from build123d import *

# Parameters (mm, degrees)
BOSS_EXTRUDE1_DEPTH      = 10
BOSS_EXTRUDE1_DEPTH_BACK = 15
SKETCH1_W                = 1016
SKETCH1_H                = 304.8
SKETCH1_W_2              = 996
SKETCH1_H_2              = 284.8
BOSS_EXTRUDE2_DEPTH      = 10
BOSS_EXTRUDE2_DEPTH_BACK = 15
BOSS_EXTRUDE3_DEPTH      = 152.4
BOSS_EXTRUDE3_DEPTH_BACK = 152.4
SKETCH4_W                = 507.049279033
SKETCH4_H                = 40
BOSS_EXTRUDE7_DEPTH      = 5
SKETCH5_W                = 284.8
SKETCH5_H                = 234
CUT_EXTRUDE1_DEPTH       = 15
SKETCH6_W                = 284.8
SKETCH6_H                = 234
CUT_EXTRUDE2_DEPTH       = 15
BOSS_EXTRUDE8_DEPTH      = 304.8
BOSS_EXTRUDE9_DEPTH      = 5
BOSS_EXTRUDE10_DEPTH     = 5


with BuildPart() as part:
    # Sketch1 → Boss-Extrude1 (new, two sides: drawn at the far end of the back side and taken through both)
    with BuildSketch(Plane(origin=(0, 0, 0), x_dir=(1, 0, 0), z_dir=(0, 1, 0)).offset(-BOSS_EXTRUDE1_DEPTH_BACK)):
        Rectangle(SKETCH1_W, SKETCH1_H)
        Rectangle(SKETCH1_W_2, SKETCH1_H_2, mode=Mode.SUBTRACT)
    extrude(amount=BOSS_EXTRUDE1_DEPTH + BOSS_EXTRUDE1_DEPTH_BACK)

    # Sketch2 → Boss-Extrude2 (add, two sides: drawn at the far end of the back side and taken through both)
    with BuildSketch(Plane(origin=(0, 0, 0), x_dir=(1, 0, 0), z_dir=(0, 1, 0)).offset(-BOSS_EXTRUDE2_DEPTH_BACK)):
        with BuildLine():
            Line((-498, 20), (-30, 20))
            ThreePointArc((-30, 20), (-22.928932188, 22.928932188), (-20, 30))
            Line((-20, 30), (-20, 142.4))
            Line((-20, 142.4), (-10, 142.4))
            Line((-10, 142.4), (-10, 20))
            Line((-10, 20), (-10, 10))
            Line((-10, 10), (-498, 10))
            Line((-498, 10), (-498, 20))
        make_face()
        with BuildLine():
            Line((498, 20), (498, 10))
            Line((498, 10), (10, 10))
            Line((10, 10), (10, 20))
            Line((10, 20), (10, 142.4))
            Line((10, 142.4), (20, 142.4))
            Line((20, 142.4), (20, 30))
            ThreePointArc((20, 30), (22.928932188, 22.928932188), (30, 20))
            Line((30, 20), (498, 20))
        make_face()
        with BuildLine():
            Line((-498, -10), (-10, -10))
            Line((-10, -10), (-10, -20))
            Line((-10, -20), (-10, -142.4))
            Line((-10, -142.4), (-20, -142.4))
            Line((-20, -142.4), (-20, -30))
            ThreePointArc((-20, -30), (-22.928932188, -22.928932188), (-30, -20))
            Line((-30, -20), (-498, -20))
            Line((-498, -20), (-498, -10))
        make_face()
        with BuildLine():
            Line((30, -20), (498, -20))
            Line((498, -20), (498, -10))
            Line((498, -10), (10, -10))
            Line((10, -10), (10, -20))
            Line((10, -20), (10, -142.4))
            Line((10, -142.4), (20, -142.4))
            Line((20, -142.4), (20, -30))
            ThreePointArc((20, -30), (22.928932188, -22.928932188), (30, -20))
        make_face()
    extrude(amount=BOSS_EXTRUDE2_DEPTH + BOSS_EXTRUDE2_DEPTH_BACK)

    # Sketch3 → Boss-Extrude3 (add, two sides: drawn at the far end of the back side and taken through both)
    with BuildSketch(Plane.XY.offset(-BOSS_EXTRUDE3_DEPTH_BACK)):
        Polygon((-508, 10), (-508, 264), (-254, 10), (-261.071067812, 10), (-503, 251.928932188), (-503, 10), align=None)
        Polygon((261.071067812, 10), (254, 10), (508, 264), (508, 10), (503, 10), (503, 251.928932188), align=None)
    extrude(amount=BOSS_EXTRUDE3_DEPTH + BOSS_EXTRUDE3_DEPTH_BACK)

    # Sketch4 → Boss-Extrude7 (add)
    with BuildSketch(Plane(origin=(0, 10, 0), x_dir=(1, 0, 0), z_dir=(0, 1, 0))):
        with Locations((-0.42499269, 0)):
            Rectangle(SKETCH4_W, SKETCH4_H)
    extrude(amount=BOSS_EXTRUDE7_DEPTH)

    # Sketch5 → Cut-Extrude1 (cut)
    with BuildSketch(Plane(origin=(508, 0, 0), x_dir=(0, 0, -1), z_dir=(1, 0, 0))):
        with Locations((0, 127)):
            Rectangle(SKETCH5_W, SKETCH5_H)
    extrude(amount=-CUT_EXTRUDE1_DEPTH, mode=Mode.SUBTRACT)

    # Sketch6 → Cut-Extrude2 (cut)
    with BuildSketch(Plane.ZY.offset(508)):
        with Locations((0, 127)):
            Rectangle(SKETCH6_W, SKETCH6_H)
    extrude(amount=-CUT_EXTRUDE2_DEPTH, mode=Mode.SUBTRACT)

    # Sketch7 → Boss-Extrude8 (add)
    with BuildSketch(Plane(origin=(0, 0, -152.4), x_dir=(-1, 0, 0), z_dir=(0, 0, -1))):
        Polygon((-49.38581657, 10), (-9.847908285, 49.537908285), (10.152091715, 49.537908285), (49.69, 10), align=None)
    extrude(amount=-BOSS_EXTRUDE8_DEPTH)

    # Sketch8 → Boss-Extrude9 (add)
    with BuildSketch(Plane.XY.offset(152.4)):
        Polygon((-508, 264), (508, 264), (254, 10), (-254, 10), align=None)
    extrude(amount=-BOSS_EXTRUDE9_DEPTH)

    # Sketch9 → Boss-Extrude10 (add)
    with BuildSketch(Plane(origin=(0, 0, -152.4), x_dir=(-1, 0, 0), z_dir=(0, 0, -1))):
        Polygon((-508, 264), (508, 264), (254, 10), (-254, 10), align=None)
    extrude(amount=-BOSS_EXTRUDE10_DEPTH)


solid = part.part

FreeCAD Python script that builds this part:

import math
import FreeCAD as App
import Part
import Sketcher

V = App.Vector
Q = App.Units.Quantity


def add_polygon(sketch, points):
    """Adds a closed chain of lines whose ends are joined by coincident constraints."""
    first, n = sketch.GeometryCount, len(points)
    for a, b in zip(points, points[1:] + points[:1]):
        sketch.addGeometry(Part.LineSegment(App.Vector(*a, 0), App.Vector(*b, 0)), False)
    for i in range(n):
        sketch.addConstraint(Sketcher.Constraint("Coincident", first + i, 2, first + (i + 1) % n, 1))

doc = App.newDocument("Part")
body = doc.addObject("PartDesign::Body", "Body")

# Sketch on XZ plane
sketch1 = body.newObject("Sketcher::SketchObject", "Sketch")
sketch1.AttachmentSupport = (doc.getObject("XZ_Plane"), [""])
sketch1.MapMode = "FlatFace"
add_polygon(sketch1, [(-508, -152.4), (-508, 152.4), (508, 152.4), (508, -152.4)])  # lines 0-3
add_polygon(sketch1, [(498, 142.4), (-498, 142.4), (-498, -142.4), (498, -142.4)])  # lines 4-7
sketch1.addConstraint(Sketcher.Constraint("Vertical", 0))
sketch1.addConstraint(Sketcher.Constraint("Horizontal", 1))
sketch1.addConstraint(Sketcher.Constraint("Vertical", 2))
sketch1.addConstraint(Sketcher.Constraint("Horizontal", 3))
sketch1.addConstraint(Sketcher.Constraint("Horizontal", 4))
sketch1.addConstraint(Sketcher.Constraint("Vertical", 5))
sketch1.addConstraint(Sketcher.Constraint("Horizontal", 6))
sketch1.addConstraint(Sketcher.Constraint("Vertical", 7))
sketch1.addConstraint(Sketcher.Constraint("Symmetric", 0, 2, 2, 2, -1, 1))
sketch1.addConstraint(Sketcher.Constraint("Symmetric", 4, 2, 6, 2, -1, 1))
sketch1.addConstraint(Sketcher.Constraint("DistanceX", 1, 1, 1, 2, Q("1016 mm")))
sketch1.addConstraint(Sketcher.Constraint("DistanceX", 4, 2, 4, 1, Q("996 mm")))
sketch1.addConstraint(Sketcher.Constraint("DistanceY", 0, 1, 0, 2, Q("304.8 mm")))
sketch1.addConstraint(Sketcher.Constraint("DistanceY", 5, 2, 5, 1, Q("284.8 mm")))
pad1 = body.newObject("PartDesign::Pad", "Pad")
pad1.Profile = sketch1
pad1.Type = "TwoLengths"
pad1.Length = 10
pad1.Length2 = 15
pad1.Reversed = True

# Sketch on XZ plane
sketch2 = body.newObject("Sketcher::SketchObject", "Sketch001")
sketch2.AttachmentSupport = (doc.getObject("XZ_Plane"), [""])
sketch2.MapMode = "FlatFace"
sketch2.addGeometry(Part.LineSegment(V(-30, -20, 0), V(-498, -20, 0)), False)
sketch2.addGeometry(Part.LineSegment(V(-498, -20, 0), V(-498, -10, 0)), False)
sketch2.addGeometry(Part.LineSegment(V(-498, -10, 0), V(-10, -10, 0)), False)
sketch2.addGeometry(Part.LineSegment(V(-10, -10, 0), V(-10, -142.4, 0)), False)
sketch2.addGeometry(Part.LineSegment(V(-10, -142.4, 0), V(-20, -142.4, 0)), False)
sketch2.addGeometry(Part.LineSegment(V(-20, -142.4, 0), V(-20, -30, 0)), False)
sketch2.addGeometry(Part.ArcOfCircle(Part.Circle(V(-30, -30, 0), V(0, 0, 1), 10), math.radians(0), math.radians(90)), False)
sketch2.addGeometry(Part.LineSegment(V(498, -10, 0), V(498, -20, 0)), False)
sketch2.addGeometry(Part.LineSegment(V(498, -20, 0), V(30, -20, 0)), False)
sketch2.addGeometry(Part.ArcOfCircle(Part.Circle(V(30, -30, 0), V(0, 0, 1), 10), math.radians(90), math.radians(180)), False)
sketch2.addGeometry(Part.LineSegment(V(20, -30, 0), V(20, -142.4, 0)), False)
sketch2.addGeometry(Part.LineSegment(V(20, -142.4, 0), V(10, -142.4, 0)), False)
sketch2.addGeometry(Part.LineSegment(V(10, -142.4, 0), V(10, -10, 0)), False)
sketch2.addGeometry(Part.LineSegment(V(10, -10, 0), V(498, -10, 0)), False)
sketch2.addGeometry(Part.LineSegment(V(-10, 10, 0), V(-498, 10, 0)), False)
sketch2.addGeometry(Part.LineSegment(V(-498, 10, 0), V(-498, 20, 0)), False)
sketch2.addGeometry(Part.LineSegment(V(-498, 20, 0), V(-30, 20, 0)), False)
sketch2.addGeometry(Part.ArcOfCircle(Part.Circle(V(-30, 30, 0), V(0, 0, 1), 10), math.radians(-90), math.radians(0)), False)
sketch2.addGeometry(Part.LineSegment(V(-20, 30, 0), V(-20, 142.4, 0)), False)
sketch2.addGeometry(Part.LineSegment(V(-20, 142.4, 0), V(-10, 142.4, 0)), False)
sketch2.addGeometry(Part.LineSegment(V(-10, 142.4, 0), V(-10, 10, 0)), False)
sketch2.addGeometry(Part.LineSegment(V(30, 20, 0), V(498, 20, 0)), False)
sketch2.addGeometry(Part.LineSegment(V(498, 20, 0), V(498, 10, 0)), False)
sketch2.addGeometry(Part.LineSegment(V(498, 10, 0), V(10, 10, 0)), False)
sketch2.addGeometry(Part.LineSegment(V(10, 10, 0), V(10, 142.4, 0)), False)
sketch2.addGeometry(Part.LineSegment(V(10, 142.4, 0), V(20, 142.4, 0)), False)
sketch2.addGeometry(Part.LineSegment(V(20, 142.4, 0), V(20, 30, 0)), False)
sketch2.addGeometry(Part.ArcOfCircle(Part.Circle(V(30, 30, 0), V(0, 0, 1), 10), math.radians(180), math.radians(270)), False)
sketch2.addConstraint(Sketcher.Constraint("Coincident", 0, 2, 1, 1))
sketch2.addConstraint(Sketcher.Constraint("Coincident", 1, 2, 2, 1))
sketch2.addConstraint(Sketcher.Constraint("Coincident", 2, 2, 3, 1))
sketch2.addConstraint(Sketcher.Constraint("Coincident", 3, 2, 4, 1))
sketch2.addConstraint(Sketcher.Constraint("Coincident", 4, 2, 5, 1))
sketch2.addConstraint(Sketcher.Constraint("Tangent", 5, 2, 6, 1))
sketch2.addConstraint(Sketcher.Constraint("Tangent", 6, 2, 0, 1))
sketch2.addConstraint(Sketcher.Constraint("Coincident", 7, 2, 8, 1))
sketch2.addConstraint(Sketcher.Constraint("Tangent", 8, 2, 9, 1))
sketch2.addConstraint(Sketcher.Constraint("Tangent", 9, 2, 10, 1))
sketch2.addConstraint(Sketcher.Constraint("Coincident", 10, 2, 11, 1))
sketch2.addConstraint(Sketcher.Constraint("Coincident", 11, 2, 12, 1))
sketch2.addConstraint(Sketcher.Constraint("Coincident", 12, 2, 13, 1))
sketch2.addConstraint(Sketcher.Constraint("Coincident", 13, 2, 7, 1))
sketch2.addConstraint(Sketcher.Constraint("Coincident", 14, 2, 15, 1))
sketch2.addConstraint(Sketcher.Constraint("Coincident", 15, 2, 16, 1))
sketch2.addConstraint(Sketcher.Constraint("Tangent", 16, 2, 17, 1))
sketch2.addConstraint(Sketcher.Constraint("Tangent", 17, 2, 18, 1))
sketch2.addConstraint(Sketcher.Constraint("Coincident", 18, 2, 19, 1))
sketch2.addConstraint(Sketcher.Constraint("Coincident", 19, 2, 20, 1))
sketch2.addConstraint(Sketcher.Constraint("Coincident", 20, 2, 14, 1))
sketch2.addConstraint(Sketcher.Constraint("Coincident", 21, 2, 22, 1))
sketch2.addConstraint(Sketcher.Constraint("Coincident", 22, 2, 23, 1))
sketch2.addConstraint(Sketcher.Constraint("Coincident", 23, 2, 24, 1))
sketch2.addConstraint(Sketcher.Constraint("Coincident", 24, 2, 25, 1))
sketch2.addConstraint(Sketcher.Constraint("Coincident", 25, 2, 26, 1))
sketch2.addConstraint(Sketcher.Constraint("Tangent", 26, 2, 27, 1))
sketch2.addConstraint(Sketcher.Constraint("Tangent", 27, 2, 21, 1))
sketch2.addConstraint(Sketcher.Constraint("Horizontal", 0))
sketch2.addConstraint(Sketcher.Constraint("Vertical", 1))
sketch2.addConstraint(Sketcher.Constraint("Horizontal", 2))
sketch2.addConstraint(Sketcher.Constraint("Vertical", 3))
sketch2.addConstraint(Sketcher.Constraint("Horizontal", 4))
sketch2.addConstraint(Sketcher.Constraint("Vertical", 5))
sketch2.addConstraint(Sketcher.Constraint("Vertical", 7))
sketch2.addConstraint(Sketcher.Constraint("Horizontal", 8))
sketch2.addConstraint(Sketcher.Constraint("Vertical", 10))
sketch2.addConstraint(Sketcher.Constraint("Horizontal", 11))
sketch2.addConstraint(Sketcher.Constraint("Vertical", 12))
sketch2.addConstraint(Sketcher.Constraint("Horizontal", 13))
sketch2.addConstraint(Sketcher.Constraint("Horizontal", 14))
sketch2.addConstraint(Sketcher.Constraint("Vertical", 15))
sketch2.addConstraint(Sketcher.Constraint("Horizontal", 16))
sketch2.addConstraint(Sketcher.Constraint("Vertical", 18))
sketch2.addConstraint(Sketcher.Constraint("Horizontal", 19))
sketch2.addConstraint(Sketcher.Constraint("Vertical", 20))
sketch2.addConstraint(Sketcher.Constraint("Horizontal", 21))
sketch2.addConstraint(Sketcher.Constraint("Vertical", 22))
sketch2.addConstraint(Sketcher.Constraint("Horizontal", 23))
sketch2.addConstraint(Sketcher.Constraint("Vertical", 24))
sketch2.addConstraint(Sketcher.Constraint("Horizontal", 25))
sketch2.addConstraint(Sketcher.Constraint("Vertical", 26))
sketch2.addConstraint(Sketcher.Constraint("Equal", 6, 9))
sketch2.addConstraint(Sketcher.Constraint("Equal", 9, 17))
sketch2.addConstraint(Sketcher.Constraint("Equal", 17, 27))
sketch2.addConstraint(Sketcher.Constraint("Symmetric", 9, 3, 17, 3, -1, 1))
sketch2.addConstraint(Sketcher.Constraint("Symmetric", 6, 3, 27, 3, -1, 1))
sketch2.addConstraint(Sketcher.Constraint("Symmetric", 13, 2, 14, 2, -1, 1))
sketch2.addConstraint(Sketcher.Constraint("Symmetric", 11, 2, 19, 2, -1, 1))
sketch2.addConstraint(Sketcher.Constraint("Symmetric", 1, 2, 22, 2, -1, 1))
sketch2.addConstraint(Sketcher.Constraint("Symmetric", 3, 2, 24, 2, -1, 1))
sketch2.addConstraint(Sketcher.Constraint("Symmetric", 6, 3, 9, 3, -2))
sketch2.addConstraint(Sketcher.Constraint("Symmetric", 3, 2, 11, 2, -2))
sketch2.addConstraint(Sketcher.Constraint("Symmetric", 1, 2, 13, 2, -2))
sketch2.addConstraint(Sketcher.Constraint("Equal", 25, 1))
sketch2.addConstraint(Sketcher.Constraint("Radius", 6, Q("10 mm")))
sketch2.addConstraint(Sketcher.Constraint("DistanceX", 0, 2, 0, 1, Q("468 mm")))
sketch2.addConstraint(Sketcher.Constraint("DistanceX", 2, 1, 2, 2, Q("488 mm")))
sketch2.addConstraint(Sketcher.Constraint("DistanceY", 3, 2, 3, 1, Q("132.4 mm")))
sketch2.addConstraint(Sketcher.Constraint("DistanceX", 6, 3, -1, 1, Q("30 mm")))
sketch2.addConstraint(Sketcher.Constraint("DistanceY", 6, 3, -1, 1, Q("30 mm")))
pad2 = body.newObject("PartDesign::Pad", "Pad001")
pad2.Profile = sketch2
pad2.Type = "TwoLengths"
pad2.Length = 10
pad2.Length2 = 15
pad2.Reversed = True

# Sketch on XY plane
sketch3 = body.newObject("Sketcher::SketchObject", "Sketch002")
sketch3.AttachmentSupport = (doc.getObject("XY_Plane"), [""])
sketch3.MapMode = "FlatFace"
add_polygon(sketch3, [(-508, 264), (-508, 10), (-503, 10), (-503, 251.928932), (-261.071068, 10), (-254, 10)])  # lines 0-5
add_polygon(sketch3, [(254, 10), (261.071068, 10), (503, 251.928932), (503, 10), (508, 10), (508, 264)])  # lines 6-11
sketch3.addConstraint(Sketcher.Constraint("Vertical", 0))
sketch3.addConstraint(Sketcher.Constraint("Horizontal", 1))
sketch3.addConstraint(Sketcher.Constraint("Vertical", 2))
sketch3.addConstraint(Sketcher.Constraint("Horizontal", 4))
sketch3.addConstraint(Sketcher.Constraint("Horizontal", 6))
sketch3.addConstraint(Sketcher.Constraint("Vertical", 8))
sketch3.addConstraint(Sketcher.Constraint("Horizontal", 9))
sketch3.addConstraint(Sketcher.Constraint("Vertical", 10))
sketch3.addConstraint(Sketcher.Constraint("Symmetric", 3, 2, 6, 2, -2))
sketch3.addConstraint(Sketcher.Constraint("Symmetric", 2, 2, 7, 2, -2))
sketch3.addConstraint(Sketcher.Constraint("Symmetric", 0, 2, 9, 2, -2))
sketch3.addConstraint(Sketcher.Constraint("Parallel", 3, 5))
sketch3.addConstraint(Sketcher.Constraint("Perpendicular", 5, 7))
sketch3.addConstraint(Sketcher.Constraint("Parallel", 7, 11))
sketch3.addConstraint(Sketcher.Constraint("Horizontal", 1, 2, 3, 2))
sketch3.addConstraint(Sketcher.Constraint("Horizontal", 5, 2, 10, 2))
sketch3.addConstraint(Sketcher.Constraint("DistanceX", 1, 1, 1, 2, Q("5 mm")))
sketch3.addConstraint(Sketcher.Constraint("DistanceY", 0, 2, 0, 1, Q("254 mm")))
sketch3.addConstraint(Sketcher.Constraint("DistanceX", 0, 2, -1, 1, Q("508 mm")))
sketch3.addConstraint(Sketcher.Constraint("DistanceY", -1, 1, 0, 2, Q("10 mm")))
sketch3.addConstraint(Sketcher.Constraint("DistanceX", 4, 1, 4, 2, Q("7.071068 mm")))
pad3 = body.newObject("PartDesign::Pad", "Pad002")
pad3.Profile = sketch3
pad3.Type = "TwoLengths"
pad3.Length = 152.4
pad3.Length2 = 152.4

# Sketch on XZ plane
sketch4 = body.newObject("Sketcher::SketchObject", "Sketch003")
sketch4.AttachmentSupport = (doc.getObject("XZ_Plane"), [""])
sketch4.MapMode = "FlatFace"
sketch4.AttachmentOffset = App.Placement(V(0, 0, -10), App.Rotation())
add_polygon(sketch4, [(-253.949632, -20), (-253.949632, 20), (253.099647, 20), (253.099647, -20)])  # lines 0-3
sketch4.addConstraint(Sketcher.Constraint("Vertical", 0))
sketch4.addConstraint(Sketcher.Constraint("Horizontal", 1))
sketch4.addConstraint(Sketcher.Constraint("Vertical", 2))
sketch4.addConstraint(Sketcher.Constraint("Horizontal", 3))
sketch4.addConstraint(Sketcher.Constraint("DistanceY", 0, 1, 0, 2, Q("40 mm")))
sketch4.addConstraint(Sketcher.Constraint("DistanceY", -1, 1, 0, 2, Q("20 mm")))
sketch4.addConstraint(Sketcher.Constraint("DistanceX", 1, 1, 1, 2, Q("507.049279 mm")))
sketch4.addConstraint(Sketcher.Constraint("DistanceX", 0, 2, -1, 1, Q("253.949632 mm")))
pad4 = body.newObject("PartDesign::Pad", "Pad003")
pad4.Profile = sketch4
pad4.Length = 5
pad4.Reversed = True

# Sketch on YZ plane
sketch5 = body.newObject("Sketcher::SketchObject", "Sketch004")
sketch5.AttachmentSupport = (doc.getObject("YZ_Plane"), [""])
sketch5.MapMode = "FlatFace"
sketch5.AttachmentOffset = App.Placement(V(0, 0, 508), App.Rotation())
add_polygon(sketch5, [(244, 142.4), (10, 142.4), (10, -142.4), (244, -142.4)])  # lines 0-3
sketch5.addConstraint(Sketcher.Constraint("Horizontal", 0))
sketch5.addConstraint(Sketcher.Constraint("Vertical", 1))
sketch5.addConstraint(Sketcher.Constraint("Horizontal", 2))
sketch5.addConstraint(Sketcher.Constraint("Vertical", 3))
sketch5.addConstraint(Sketcher.Constraint("DistanceX", 0, 2, 0, 1, Q("234 mm")))
sketch5.addConstraint(Sketcher.Constraint("DistanceY", 1, 2, 1, 1, Q("284.8 mm")))
sketch5.addConstraint(Sketcher.Constraint("DistanceX", -1, 1, 0, 2, Q("10 mm")))
sketch5.addConstraint(Sketcher.Constraint("DistanceY", -1, 1, 0, 2, Q("142.4 mm")))
pocket1 = body.newObject("PartDesign::Pocket", "Pocket")
pocket1.Profile = sketch5
pocket1.Length = 15

# Sketch on YZ plane
sketch6 = body.newObject("Sketcher::SketchObject", "Sketch005")
sketch6.AttachmentSupport = (doc.getObject("YZ_Plane"), [""])
sketch6.MapMode = "FlatFace"
sketch6.AttachmentOffset = App.Placement(V(0, 0, -508), App.Rotation())
add_polygon(sketch6, [(244, -142.4), (10, -142.4), (10, 142.4), (244, 142.4)])  # lines 0-3
sketch6.addConstraint(Sketcher.Constraint("Horizontal", 0))
sketch6.addConstraint(Sketcher.Constraint("Vertical", 1))
sketch6.addConstraint(Sketcher.Constraint("Horizontal", 2))
sketch6.addConstraint(Sketcher.Constraint("Vertical", 3))
sketch6.addConstraint(Sketcher.Constraint("DistanceX", 0, 2, 0, 1, Q("234 mm")))
sketch6.addConstraint(Sketcher.Constraint("DistanceY", 1, 1, 1, 2, Q("284.8 mm")))
sketch6.addConstraint(Sketcher.Constraint("DistanceX", -1, 1, 0, 2, Q("10 mm")))
sketch6.addConstraint(Sketcher.Constraint("DistanceY", 0, 2, -1, 1, Q("142.4 mm")))
pocket2 = body.newObject("PartDesign::Pocket", "Pocket001")
pocket2.Profile = sketch6
pocket2.Length = 15
pocket2.Reversed = True

# Sketch on XY plane
sketch7 = body.newObject("Sketcher::SketchObject", "Sketch006")
sketch7.AttachmentSupport = (doc.getObject("XY_Plane"), [""])
sketch7.MapMode = "FlatFace"
sketch7.AttachmentOffset = App.Placement(V(0, 0, -152.4), App.Rotation())
add_polygon(sketch7, [(9.847908, 49.537908), (49.385817, 10), (-49.69, 10), (-10.152092, 49.537908)])  # lines 0-3
sketch7.addConstraint(Sketcher.Constraint("Horizontal", 1))
sketch7.addConstraint(Sketcher.Constraint("Horizontal", 3))
sketch7.addConstraint(Sketcher.Constraint("Perpendicular", 0, 2))
sketch7.addConstraint(Sketcher.Constraint("Equal", 0, 2))
sketch7.addConstraint(Sketcher.Constraint("DistanceX", 3, 1, 3, 2, Q("20 mm")))
sketch7.addConstraint(Sketcher.Constraint("DistanceY", -1, 1, 0, 2, Q("10 mm")))
sketch7.addConstraint(Sketcher.Constraint("DistanceX", 1, 2, -1, 1, Q("49.69 mm")))
sketch7.addConstraint(Sketcher.Constraint("DistanceX", 1, 2, 1, 1, Q("99.075817 mm")))
pad5 = body.newObject("PartDesign::Pad", "Pad004")
pad5.Profile = sketch7
pad5.Length = 304.8

# Sketch on XY plane
sketch8 = body.newObject("Sketcher::SketchObject", "Sketch007")
sketch8.AttachmentSupport = (doc.getObject("XY_Plane"), [""])
sketch8.MapMode = "FlatFace"
sketch8.AttachmentOffset = App.Placement(V(0, 0, 152.4), App.Rotation())
add_polygon(sketch8, [(508, 264), (-508, 264), (-254, 10), (254, 10)])  # lines 0-3
sketch8.addConstraint(Sketcher.Constraint("Horizontal", 0))
sketch8.addConstraint(Sketcher.Constraint("Horizontal", 2))
sketch8.addConstraint(Sketcher.Constraint("Perpendicular", 1, 3))
sketch8.addConstraint(Sketcher.Constraint("Equal", 1, 3))
sketch8.addConstraint(Sketcher.Constraint("DistanceX", 0, 2, 0, 1, Q("1016 mm")))
sketch8.addConstraint(Sketcher.Constraint("DistanceX", 2, 1, 2, 2, Q("508 mm")))
sketch8.addConstraint(Sketcher.Constraint("DistanceX", 0, 2, -1, 1, Q("508 mm")))
sketch8.addConstraint(Sketcher.Constraint("DistanceY", -1, 1, 0, 2, Q("264 mm")))
pad6 = body.newObject("PartDesign::Pad", "Pad005")
pad6.Profile = sketch8
pad6.Length = 5
pad6.Reversed = True

# Sketch on XY plane
sketch9 = body.newObject("Sketcher::SketchObject", "Sketch008")
sketch9.AttachmentSupport = (doc.getObject("XY_Plane"), [""])
sketch9.MapMode = "FlatFace"
sketch9.AttachmentOffset = App.Placement(V(0, 0, -152.4), App.Rotation())
add_polygon(sketch9, [(-508, 264), (508, 264), (254, 10), (-254, 10)])  # lines 0-3
sketch9.addConstraint(Sketcher.Constraint("Horizontal", 0))
sketch9.addConstraint(Sketcher.Constraint("Horizontal", 2))
sketch9.addConstraint(Sketcher.Constraint("Perpendicular", 1, 3))
sketch9.addConstraint(Sketcher.Constraint("Equal", 1, 3))
sketch9.addConstraint(Sketcher.Constraint("DistanceX", 0, 1, 0, 2, Q("1016 mm")))
sketch9.addConstraint(Sketcher.Constraint("DistanceX", 2, 2, 2, 1, Q("508 mm")))
sketch9.addConstraint(Sketcher.Constraint("DistanceX", -1, 1, 0, 2, Q("508 mm")))
sketch9.addConstraint(Sketcher.Constraint("DistanceY", -1, 1, 0, 2, Q("264 mm")))
pad7 = body.newObject("PartDesign::Pad", "Pad006")
pad7.Profile = sketch9
pad7.Length = 5

doc.recompute()
